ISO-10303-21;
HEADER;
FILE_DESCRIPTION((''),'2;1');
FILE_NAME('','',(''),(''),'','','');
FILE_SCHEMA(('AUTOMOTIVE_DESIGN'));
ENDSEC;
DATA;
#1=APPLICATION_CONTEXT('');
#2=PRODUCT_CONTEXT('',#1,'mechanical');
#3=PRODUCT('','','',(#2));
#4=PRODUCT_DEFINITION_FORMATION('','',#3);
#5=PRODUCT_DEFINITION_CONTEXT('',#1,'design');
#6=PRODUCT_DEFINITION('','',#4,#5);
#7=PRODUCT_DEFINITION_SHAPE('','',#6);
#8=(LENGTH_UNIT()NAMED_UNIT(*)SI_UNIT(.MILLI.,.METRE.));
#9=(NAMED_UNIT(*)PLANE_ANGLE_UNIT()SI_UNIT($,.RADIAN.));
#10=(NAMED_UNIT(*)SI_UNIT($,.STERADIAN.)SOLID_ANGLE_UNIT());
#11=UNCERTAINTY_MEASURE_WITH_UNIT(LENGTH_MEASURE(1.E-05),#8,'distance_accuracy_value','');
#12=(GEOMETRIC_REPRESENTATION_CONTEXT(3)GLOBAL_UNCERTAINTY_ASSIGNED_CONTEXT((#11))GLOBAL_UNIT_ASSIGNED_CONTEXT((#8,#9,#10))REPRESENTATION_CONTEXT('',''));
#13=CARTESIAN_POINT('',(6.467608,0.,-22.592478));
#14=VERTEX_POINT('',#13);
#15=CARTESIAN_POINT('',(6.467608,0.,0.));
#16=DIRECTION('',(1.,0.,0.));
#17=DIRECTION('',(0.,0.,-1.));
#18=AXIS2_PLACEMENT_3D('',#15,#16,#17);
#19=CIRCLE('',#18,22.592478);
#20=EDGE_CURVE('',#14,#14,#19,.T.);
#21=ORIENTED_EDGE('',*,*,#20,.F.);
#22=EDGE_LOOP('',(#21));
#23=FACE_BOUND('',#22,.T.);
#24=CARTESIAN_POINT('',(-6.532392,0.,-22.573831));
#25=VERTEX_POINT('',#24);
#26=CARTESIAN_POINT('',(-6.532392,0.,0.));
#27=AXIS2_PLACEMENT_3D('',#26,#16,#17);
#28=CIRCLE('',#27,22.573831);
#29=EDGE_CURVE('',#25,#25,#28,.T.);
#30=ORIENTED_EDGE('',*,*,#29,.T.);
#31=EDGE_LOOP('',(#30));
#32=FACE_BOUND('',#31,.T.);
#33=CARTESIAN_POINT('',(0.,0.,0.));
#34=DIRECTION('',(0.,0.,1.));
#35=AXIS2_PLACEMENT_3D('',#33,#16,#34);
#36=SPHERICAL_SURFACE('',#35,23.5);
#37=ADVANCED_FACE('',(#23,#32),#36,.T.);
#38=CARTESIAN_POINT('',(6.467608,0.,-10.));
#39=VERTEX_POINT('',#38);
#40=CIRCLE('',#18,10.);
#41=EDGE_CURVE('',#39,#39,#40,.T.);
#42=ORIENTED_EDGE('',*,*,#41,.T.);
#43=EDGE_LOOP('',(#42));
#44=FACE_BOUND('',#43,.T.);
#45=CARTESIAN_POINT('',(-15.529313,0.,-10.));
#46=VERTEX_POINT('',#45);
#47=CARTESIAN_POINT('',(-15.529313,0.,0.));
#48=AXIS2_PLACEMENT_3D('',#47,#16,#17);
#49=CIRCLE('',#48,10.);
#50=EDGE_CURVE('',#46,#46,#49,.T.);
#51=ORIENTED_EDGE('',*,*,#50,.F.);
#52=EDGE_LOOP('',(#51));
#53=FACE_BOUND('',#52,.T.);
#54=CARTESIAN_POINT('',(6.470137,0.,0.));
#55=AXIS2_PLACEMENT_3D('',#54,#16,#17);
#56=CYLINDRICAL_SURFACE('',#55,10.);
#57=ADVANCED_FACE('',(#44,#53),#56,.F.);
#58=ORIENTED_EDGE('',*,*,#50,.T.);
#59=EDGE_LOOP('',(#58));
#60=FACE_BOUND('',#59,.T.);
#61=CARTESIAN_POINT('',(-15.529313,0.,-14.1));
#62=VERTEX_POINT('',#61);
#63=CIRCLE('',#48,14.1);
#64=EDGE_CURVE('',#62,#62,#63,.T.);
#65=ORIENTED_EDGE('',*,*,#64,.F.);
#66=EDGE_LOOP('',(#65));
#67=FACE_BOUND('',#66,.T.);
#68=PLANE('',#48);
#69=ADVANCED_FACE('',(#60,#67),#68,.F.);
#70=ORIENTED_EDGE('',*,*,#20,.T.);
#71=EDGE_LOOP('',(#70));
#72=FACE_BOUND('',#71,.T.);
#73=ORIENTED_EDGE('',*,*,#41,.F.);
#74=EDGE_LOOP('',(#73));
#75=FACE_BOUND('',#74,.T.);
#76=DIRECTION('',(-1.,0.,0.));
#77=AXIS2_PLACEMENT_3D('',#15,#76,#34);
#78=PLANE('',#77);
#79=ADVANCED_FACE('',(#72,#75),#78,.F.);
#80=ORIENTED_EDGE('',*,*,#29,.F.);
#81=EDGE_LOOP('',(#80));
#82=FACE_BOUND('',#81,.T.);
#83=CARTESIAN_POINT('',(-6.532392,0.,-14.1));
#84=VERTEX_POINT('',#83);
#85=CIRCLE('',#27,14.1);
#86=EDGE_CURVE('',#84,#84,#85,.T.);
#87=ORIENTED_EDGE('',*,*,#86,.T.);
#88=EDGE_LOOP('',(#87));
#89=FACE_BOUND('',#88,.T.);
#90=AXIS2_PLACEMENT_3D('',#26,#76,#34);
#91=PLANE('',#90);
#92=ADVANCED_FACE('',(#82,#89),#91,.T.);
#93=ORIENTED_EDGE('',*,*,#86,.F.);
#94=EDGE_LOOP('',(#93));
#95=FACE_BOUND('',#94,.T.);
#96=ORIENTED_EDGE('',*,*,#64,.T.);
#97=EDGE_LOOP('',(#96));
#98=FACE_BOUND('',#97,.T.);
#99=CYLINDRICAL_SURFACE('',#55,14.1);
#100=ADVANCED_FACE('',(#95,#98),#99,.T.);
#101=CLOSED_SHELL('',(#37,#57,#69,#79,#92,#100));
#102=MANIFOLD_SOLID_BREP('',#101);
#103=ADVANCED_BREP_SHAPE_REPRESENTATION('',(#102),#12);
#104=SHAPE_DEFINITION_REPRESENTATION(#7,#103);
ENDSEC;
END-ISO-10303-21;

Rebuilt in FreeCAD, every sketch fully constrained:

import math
import FreeCAD as App
import Part
import Sketcher
from FreeCAD import Vector
Q = App.Units.Quantity

doc = App.newDocument("Part")
body = doc.addObject("PartDesign::Body", "Body")

# Sketch on XZ plane
sketch1 = body.newObject("Sketcher::SketchObject", "Sketch")
sketch1.AttachmentSupport = (doc.getObject("XZ_Plane"), [""])
sketch1.MapMode = "FlatFace"
sketch1.addGeometry([
    Part.LineSegment(Vector(6.5, 22.6, 0), Vector(6.5, 10, 0)),  # 0
    Part.LineSegment(Vector(6.5, 10, 0), Vector(-15.5, 10, 0)),  # 1
    Part.LineSegment(Vector(-15.5, 10, 0), Vector(-15.5, 14.1, 0)),  # 2
    Part.LineSegment(Vector(-15.5, 14.1, 0), Vector(-6.5, 14.1, 0)),  # 3
    Part.LineSegment(Vector(-6.5, 14.1, 0), Vector(-6.5, 22.6, 0)),  # 4
    Part.ArcOfCircle(Part.Circle(Vector(0, 0, 0), Vector(0, 0, 1), 23.5), math.radians(74), math.radians(106)),  # 5
], False)
sketch1.addConstraint([
    Sketcher.Constraint("Coincident", 0, 2, 1, 1),
    Sketcher.Constraint("Coincident", 1, 2, 2, 1),
    Sketcher.Constraint("Coincident", 2, 2, 3, 1),
    Sketcher.Constraint("Coincident", 3, 2, 4, 1),
    Sketcher.Constraint("Coincident", 4, 2, 5, 2),
    Sketcher.Constraint("Coincident", 5, 1, 0, 1),
    Sketcher.Constraint("Vertical", 0),
    Sketcher.Constraint("Horizontal", 1),
    Sketcher.Constraint("Vertical", 2),
    Sketcher.Constraint("Horizontal", 3),
    Sketcher.Constraint("Vertical", 4),
    Sketcher.Constraint("Coincident", 5, 3, -1, 1),
    Sketcher.Constraint("Radius", 5, Q("23.5 mm")),
    Sketcher.Constraint("DistanceY", 2, 1, 2, 2, Q("4.1 mm")),
    Sketcher.Constraint("DistanceY", -1, 1, 0, 2, Q("10 mm")),
    Sketcher.Constraint("DistanceX", 3, 2, 0, 2, Q("13 mm")),
    Sketcher.Constraint("DistanceX", 1, 2, 1, 1, Q("21.996921 mm")),
    Sketcher.Constraint("DistanceY", 4, 1, 4, 2, Q("8.473831 mm")),
])
revolution = body.newObject("PartDesign::Revolution", "Revolution")
revolution.Profile = sketch1
revolution.ReferenceAxis = (sketch1, ["H_Axis"])
revolution.Angle = 360

doc.recompute()
